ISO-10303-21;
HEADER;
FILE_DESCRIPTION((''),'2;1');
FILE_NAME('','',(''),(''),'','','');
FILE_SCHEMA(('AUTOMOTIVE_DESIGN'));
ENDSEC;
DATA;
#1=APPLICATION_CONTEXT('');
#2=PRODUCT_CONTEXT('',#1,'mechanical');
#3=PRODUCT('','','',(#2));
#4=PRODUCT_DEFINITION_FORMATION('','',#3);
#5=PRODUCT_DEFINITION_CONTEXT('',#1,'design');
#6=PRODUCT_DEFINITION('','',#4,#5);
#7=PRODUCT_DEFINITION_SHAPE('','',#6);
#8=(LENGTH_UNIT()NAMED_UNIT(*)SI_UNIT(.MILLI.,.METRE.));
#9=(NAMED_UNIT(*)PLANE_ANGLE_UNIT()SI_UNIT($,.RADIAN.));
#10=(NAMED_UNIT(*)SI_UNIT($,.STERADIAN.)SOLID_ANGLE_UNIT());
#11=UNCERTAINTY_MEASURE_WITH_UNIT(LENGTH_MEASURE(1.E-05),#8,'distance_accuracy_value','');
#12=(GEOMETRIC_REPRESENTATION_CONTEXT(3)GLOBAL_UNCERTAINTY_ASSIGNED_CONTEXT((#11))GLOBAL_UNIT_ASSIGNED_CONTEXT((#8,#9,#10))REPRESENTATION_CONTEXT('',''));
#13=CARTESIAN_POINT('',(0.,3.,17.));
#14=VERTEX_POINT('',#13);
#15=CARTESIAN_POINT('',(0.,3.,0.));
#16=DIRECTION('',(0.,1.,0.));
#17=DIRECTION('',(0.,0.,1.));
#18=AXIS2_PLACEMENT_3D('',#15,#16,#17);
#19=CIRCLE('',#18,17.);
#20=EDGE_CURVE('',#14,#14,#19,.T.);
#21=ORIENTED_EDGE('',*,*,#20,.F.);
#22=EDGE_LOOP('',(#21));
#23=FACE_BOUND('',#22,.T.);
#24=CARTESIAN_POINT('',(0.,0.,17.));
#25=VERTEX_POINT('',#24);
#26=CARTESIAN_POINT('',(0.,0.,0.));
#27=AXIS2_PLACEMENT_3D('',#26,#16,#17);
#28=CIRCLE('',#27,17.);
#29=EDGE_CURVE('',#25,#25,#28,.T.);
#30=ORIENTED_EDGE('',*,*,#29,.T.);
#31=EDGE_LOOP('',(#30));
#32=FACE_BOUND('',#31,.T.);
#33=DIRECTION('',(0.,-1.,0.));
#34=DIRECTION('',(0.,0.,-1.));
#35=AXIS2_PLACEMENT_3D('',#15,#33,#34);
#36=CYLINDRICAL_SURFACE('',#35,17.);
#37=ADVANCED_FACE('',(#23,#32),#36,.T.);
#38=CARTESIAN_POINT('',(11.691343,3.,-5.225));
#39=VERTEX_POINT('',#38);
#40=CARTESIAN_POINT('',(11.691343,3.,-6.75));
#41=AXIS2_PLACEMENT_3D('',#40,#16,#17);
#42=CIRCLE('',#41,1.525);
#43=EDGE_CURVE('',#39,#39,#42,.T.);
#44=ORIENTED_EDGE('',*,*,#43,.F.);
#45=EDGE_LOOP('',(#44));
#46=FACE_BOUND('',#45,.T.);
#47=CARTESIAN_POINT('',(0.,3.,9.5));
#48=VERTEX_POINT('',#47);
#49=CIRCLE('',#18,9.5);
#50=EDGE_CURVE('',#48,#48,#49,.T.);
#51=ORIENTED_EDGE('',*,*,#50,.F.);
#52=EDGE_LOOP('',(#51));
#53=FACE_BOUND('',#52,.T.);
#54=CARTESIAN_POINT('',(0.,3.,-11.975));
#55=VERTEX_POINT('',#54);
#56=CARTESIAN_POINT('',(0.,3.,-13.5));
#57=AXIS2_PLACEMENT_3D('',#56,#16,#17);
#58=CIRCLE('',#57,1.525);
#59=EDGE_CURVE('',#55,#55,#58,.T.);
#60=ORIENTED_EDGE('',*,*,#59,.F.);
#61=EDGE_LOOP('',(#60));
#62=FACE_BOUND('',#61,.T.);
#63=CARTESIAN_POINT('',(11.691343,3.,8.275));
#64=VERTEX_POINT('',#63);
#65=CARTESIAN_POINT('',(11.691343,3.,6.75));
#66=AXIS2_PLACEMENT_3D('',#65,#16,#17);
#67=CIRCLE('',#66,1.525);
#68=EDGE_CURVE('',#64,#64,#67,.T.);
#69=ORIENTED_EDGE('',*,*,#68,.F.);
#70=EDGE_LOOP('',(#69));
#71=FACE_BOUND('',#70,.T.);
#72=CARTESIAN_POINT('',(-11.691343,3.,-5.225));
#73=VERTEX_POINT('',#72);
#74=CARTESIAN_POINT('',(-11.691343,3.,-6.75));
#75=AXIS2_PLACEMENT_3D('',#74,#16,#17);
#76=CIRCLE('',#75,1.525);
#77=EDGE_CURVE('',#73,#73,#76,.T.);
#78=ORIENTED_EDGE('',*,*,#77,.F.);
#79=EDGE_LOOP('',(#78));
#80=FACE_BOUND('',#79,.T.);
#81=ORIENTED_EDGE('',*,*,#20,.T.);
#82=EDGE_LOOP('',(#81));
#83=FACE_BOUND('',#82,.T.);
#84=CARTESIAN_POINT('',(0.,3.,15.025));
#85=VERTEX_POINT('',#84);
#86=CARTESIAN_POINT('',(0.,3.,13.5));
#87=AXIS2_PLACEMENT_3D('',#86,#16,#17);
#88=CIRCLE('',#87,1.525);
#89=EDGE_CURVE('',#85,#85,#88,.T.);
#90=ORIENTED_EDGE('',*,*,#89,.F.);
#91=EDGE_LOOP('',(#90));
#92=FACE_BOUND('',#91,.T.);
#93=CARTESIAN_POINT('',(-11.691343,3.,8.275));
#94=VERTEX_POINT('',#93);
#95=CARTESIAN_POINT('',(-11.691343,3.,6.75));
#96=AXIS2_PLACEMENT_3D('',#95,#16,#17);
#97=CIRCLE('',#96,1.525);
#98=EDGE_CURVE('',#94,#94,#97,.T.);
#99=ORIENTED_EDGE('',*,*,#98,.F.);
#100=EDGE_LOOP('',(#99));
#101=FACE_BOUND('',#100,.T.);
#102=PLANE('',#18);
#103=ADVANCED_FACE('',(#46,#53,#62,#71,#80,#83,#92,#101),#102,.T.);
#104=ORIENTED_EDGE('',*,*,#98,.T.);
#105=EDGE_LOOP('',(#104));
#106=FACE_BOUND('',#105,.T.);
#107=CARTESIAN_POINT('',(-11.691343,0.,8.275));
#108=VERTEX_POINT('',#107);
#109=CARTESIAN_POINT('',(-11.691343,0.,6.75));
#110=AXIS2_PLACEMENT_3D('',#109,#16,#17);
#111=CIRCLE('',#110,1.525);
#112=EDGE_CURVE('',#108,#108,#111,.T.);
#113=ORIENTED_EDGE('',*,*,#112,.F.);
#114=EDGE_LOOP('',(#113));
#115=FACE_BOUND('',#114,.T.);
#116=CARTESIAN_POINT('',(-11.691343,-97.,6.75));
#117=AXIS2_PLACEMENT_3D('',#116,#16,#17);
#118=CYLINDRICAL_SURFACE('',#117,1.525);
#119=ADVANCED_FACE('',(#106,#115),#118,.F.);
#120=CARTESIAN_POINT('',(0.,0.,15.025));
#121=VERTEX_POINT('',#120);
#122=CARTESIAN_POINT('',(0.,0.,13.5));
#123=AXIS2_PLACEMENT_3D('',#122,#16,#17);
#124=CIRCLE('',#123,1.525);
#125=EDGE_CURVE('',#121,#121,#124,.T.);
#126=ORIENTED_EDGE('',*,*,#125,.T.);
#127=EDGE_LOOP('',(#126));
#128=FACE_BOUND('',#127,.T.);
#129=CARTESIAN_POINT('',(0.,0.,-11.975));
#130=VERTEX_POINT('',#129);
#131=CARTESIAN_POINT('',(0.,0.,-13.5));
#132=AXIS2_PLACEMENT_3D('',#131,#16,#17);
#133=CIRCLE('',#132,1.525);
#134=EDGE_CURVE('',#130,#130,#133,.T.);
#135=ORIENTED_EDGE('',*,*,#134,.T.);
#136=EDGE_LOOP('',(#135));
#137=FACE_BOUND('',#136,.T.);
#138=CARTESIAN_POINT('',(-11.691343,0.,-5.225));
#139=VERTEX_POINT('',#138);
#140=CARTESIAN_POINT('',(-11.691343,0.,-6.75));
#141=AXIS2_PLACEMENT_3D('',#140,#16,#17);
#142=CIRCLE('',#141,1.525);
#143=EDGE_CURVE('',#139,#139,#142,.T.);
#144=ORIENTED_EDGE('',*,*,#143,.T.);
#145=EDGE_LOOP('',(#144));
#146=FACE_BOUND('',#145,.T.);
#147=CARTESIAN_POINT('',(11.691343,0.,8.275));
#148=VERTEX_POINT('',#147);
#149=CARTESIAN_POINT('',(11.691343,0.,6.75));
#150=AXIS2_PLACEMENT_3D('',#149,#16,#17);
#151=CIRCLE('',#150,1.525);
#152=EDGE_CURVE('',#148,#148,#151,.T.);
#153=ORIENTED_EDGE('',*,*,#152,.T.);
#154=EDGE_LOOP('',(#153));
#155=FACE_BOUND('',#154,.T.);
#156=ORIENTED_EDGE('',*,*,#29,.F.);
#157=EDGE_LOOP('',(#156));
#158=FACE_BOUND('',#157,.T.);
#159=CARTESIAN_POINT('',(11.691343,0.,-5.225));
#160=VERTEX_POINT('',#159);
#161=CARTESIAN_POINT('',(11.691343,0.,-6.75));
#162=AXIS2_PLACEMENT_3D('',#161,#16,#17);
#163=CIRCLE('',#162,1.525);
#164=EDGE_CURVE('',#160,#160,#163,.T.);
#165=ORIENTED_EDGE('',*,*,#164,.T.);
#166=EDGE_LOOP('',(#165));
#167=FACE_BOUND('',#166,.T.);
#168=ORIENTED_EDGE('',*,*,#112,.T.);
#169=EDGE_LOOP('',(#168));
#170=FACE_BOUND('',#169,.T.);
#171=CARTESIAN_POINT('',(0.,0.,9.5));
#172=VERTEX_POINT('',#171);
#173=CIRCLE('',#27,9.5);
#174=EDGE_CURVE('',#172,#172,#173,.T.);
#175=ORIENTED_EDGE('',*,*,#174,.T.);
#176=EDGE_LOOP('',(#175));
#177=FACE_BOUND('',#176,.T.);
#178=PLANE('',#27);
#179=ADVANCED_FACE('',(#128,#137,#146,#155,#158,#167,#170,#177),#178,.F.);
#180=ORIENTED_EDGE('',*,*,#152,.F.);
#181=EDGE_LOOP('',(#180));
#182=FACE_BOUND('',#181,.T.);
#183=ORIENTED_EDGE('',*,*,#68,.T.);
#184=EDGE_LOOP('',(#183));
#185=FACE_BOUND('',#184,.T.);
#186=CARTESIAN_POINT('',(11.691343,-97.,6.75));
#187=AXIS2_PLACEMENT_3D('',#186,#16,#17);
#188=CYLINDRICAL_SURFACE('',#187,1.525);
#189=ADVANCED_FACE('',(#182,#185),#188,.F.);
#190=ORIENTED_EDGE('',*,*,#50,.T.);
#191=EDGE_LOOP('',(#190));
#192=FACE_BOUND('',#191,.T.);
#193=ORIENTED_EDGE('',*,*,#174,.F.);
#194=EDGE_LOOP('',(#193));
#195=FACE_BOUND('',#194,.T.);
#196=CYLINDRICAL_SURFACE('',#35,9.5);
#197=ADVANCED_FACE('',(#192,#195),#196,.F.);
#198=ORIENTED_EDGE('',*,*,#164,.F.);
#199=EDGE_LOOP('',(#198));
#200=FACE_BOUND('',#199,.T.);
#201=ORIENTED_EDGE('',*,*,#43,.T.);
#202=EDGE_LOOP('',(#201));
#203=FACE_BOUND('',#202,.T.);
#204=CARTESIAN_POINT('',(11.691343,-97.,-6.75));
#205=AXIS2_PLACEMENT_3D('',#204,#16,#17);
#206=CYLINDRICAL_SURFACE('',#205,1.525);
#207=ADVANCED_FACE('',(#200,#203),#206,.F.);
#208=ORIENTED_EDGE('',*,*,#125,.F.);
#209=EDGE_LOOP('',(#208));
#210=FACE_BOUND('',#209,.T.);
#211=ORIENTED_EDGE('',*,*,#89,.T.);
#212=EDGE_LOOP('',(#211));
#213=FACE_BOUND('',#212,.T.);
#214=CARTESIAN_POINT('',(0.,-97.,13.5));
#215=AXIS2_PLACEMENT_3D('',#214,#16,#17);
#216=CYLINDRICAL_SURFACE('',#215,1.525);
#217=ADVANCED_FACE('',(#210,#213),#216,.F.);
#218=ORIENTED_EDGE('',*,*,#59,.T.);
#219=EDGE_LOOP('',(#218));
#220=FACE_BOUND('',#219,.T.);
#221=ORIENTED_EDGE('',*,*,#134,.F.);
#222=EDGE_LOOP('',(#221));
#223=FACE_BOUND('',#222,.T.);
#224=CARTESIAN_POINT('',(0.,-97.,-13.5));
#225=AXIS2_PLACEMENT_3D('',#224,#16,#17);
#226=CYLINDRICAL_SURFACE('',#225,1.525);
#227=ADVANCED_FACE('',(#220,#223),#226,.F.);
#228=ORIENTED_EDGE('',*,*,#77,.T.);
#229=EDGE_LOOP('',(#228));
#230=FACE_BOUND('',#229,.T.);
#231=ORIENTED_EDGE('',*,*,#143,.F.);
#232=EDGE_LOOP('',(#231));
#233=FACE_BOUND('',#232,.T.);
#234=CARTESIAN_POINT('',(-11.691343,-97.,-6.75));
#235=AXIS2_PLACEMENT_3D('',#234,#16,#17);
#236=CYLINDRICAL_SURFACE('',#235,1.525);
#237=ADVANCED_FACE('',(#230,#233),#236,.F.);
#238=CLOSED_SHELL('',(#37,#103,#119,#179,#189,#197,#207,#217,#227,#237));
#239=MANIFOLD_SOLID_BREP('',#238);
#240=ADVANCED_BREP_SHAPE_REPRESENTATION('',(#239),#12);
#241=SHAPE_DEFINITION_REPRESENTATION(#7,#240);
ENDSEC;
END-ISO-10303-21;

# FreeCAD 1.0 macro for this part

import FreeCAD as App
import Part
import Sketcher
Q = App.Units.Quantity

doc = App.newDocument("Part")
params = doc.addObject("Spreadsheet::Sheet", "Params")
for row, (alias, value) in enumerate([
    ("sketch1_diameter", "34 mm"),
    ("sketch1_diameter2", "19 mm"),
    ("pad1_length", "3 mm"),
    ("sketch2_diameter", "3.05 mm"),
    ("pocket1_length", "100 mm"),
], start=1):
    params.set(f"A{row}", alias)
    params.set(f"B{row}", "=" + value)
    params.setAlias(f"B{row}", alias)

body = doc.addObject("PartDesign::Body", "Body")

# Sketch on XZ plane
sketch1 = body.newObject("Sketcher::SketchObject", "Sketch")
sketch1.AttachmentSupport = (doc.getObject("XZ_Plane"), [""])
sketch1.MapMode = "FlatFace"
sketch1.addGeometry([
    Part.Circle(App.Vector(0, 0, 0), App.Vector(0, 0, 1), 17),
    Part.Circle(App.Vector(0, 0, 0), App.Vector(0, 0, 1), 9.5),
], False)
sketch1.addConstraint([
    Sketcher.Constraint("Coincident", 0, 3, -1, 1),
    Sketcher.Constraint("Coincident", 1, 3, -1, 1),
    Sketcher.Constraint("Diameter", 0, Q("34 mm")),
    Sketcher.Constraint("Diameter", 1, Q("19 mm")),
])
sketch1.setExpression("Constraints[2]", "Params.sketch1_diameter")
sketch1.setExpression("Constraints[3]", "Params.sketch1_diameter2")
pad1 = body.newObject("PartDesign::Pad", "Pad")
pad1.Profile = sketch1
pad1.setExpression("Length", "Params.pad1_length")
pad1.Reversed = True

# Sketch on XZ plane
sketch2 = body.newObject("Sketcher::SketchObject", "Sketch001")
sketch2.AttachmentSupport = (doc.getObject("XZ_Plane"), [""])
sketch2.MapMode = "FlatFace"
sketch2.AttachmentOffset = App.Placement(App.Vector(0, 0, -3), App.Rotation())
sketch2.addGeometry([
    Part.Circle(App.Vector(0, -13.5, 0), App.Vector(0, 0, 1), 1.525),  # 0
    Part.Circle(App.Vector(11.691343, -6.75, 0), App.Vector(0, 0, 1), 1.525),  # 1
    Part.Circle(App.Vector(11.691343, 6.75, 0), App.Vector(0, 0, 1), 1.525),  # 2
    Part.Circle(App.Vector(0, 13.5, 0), App.Vector(0, 0, 1), 1.525),  # 3
    Part.Circle(App.Vector(-11.691343, 6.75, 0), App.Vector(0, 0, 1), 1.525),  # 4
    Part.Circle(App.Vector(-11.691343, -6.75, 0), App.Vector(0, 0, 1), 1.525),  # 5
], False)
sketch2.addConstraint([
    Sketcher.Constraint("Equal", 0, 1),
    Sketcher.Constraint("Equal", 1, 2),
    Sketcher.Constraint("Equal", 2, 3),
    Sketcher.Constraint("Equal", 3, 4),
    Sketcher.Constraint("Equal", 4, 5),
    Sketcher.Constraint("Symmetric", 0, 3, 3, 3, -1, 1),
    Sketcher.Constraint("Symmetric", 1, 3, 4, 3, -1, 1),
    Sketcher.Constraint("Symmetric", 2, 3, 5, 3, -1, 1),
    Sketcher.Constraint("Symmetric", 2, 3, 4, 3, -2),
    Sketcher.Constraint("PointOnObject", 0, 3, -2),
    Sketcher.Constraint("Diameter", 0, Q("3.05 mm")),
    Sketcher.Constraint("DistanceY", 0, 3, 3, 3, Q("27 mm")),
    Sketcher.Constraint("DistanceY", 1, 3, 2, 3, Q("13.5 mm")),
    Sketcher.Constraint("DistanceX", -1, 1, 1, 3, Q("11.691343 mm")),
])
sketch2.setExpression("Constraints[10]", "Params.sketch2_diameter")
pocket1 = body.newObject("PartDesign::Pocket", "Pocket")
pocket1.Profile = sketch2
pocket1.setExpression("Length", "Params.pocket1_length")
pocket1.Reversed = True

doc.recompute()
